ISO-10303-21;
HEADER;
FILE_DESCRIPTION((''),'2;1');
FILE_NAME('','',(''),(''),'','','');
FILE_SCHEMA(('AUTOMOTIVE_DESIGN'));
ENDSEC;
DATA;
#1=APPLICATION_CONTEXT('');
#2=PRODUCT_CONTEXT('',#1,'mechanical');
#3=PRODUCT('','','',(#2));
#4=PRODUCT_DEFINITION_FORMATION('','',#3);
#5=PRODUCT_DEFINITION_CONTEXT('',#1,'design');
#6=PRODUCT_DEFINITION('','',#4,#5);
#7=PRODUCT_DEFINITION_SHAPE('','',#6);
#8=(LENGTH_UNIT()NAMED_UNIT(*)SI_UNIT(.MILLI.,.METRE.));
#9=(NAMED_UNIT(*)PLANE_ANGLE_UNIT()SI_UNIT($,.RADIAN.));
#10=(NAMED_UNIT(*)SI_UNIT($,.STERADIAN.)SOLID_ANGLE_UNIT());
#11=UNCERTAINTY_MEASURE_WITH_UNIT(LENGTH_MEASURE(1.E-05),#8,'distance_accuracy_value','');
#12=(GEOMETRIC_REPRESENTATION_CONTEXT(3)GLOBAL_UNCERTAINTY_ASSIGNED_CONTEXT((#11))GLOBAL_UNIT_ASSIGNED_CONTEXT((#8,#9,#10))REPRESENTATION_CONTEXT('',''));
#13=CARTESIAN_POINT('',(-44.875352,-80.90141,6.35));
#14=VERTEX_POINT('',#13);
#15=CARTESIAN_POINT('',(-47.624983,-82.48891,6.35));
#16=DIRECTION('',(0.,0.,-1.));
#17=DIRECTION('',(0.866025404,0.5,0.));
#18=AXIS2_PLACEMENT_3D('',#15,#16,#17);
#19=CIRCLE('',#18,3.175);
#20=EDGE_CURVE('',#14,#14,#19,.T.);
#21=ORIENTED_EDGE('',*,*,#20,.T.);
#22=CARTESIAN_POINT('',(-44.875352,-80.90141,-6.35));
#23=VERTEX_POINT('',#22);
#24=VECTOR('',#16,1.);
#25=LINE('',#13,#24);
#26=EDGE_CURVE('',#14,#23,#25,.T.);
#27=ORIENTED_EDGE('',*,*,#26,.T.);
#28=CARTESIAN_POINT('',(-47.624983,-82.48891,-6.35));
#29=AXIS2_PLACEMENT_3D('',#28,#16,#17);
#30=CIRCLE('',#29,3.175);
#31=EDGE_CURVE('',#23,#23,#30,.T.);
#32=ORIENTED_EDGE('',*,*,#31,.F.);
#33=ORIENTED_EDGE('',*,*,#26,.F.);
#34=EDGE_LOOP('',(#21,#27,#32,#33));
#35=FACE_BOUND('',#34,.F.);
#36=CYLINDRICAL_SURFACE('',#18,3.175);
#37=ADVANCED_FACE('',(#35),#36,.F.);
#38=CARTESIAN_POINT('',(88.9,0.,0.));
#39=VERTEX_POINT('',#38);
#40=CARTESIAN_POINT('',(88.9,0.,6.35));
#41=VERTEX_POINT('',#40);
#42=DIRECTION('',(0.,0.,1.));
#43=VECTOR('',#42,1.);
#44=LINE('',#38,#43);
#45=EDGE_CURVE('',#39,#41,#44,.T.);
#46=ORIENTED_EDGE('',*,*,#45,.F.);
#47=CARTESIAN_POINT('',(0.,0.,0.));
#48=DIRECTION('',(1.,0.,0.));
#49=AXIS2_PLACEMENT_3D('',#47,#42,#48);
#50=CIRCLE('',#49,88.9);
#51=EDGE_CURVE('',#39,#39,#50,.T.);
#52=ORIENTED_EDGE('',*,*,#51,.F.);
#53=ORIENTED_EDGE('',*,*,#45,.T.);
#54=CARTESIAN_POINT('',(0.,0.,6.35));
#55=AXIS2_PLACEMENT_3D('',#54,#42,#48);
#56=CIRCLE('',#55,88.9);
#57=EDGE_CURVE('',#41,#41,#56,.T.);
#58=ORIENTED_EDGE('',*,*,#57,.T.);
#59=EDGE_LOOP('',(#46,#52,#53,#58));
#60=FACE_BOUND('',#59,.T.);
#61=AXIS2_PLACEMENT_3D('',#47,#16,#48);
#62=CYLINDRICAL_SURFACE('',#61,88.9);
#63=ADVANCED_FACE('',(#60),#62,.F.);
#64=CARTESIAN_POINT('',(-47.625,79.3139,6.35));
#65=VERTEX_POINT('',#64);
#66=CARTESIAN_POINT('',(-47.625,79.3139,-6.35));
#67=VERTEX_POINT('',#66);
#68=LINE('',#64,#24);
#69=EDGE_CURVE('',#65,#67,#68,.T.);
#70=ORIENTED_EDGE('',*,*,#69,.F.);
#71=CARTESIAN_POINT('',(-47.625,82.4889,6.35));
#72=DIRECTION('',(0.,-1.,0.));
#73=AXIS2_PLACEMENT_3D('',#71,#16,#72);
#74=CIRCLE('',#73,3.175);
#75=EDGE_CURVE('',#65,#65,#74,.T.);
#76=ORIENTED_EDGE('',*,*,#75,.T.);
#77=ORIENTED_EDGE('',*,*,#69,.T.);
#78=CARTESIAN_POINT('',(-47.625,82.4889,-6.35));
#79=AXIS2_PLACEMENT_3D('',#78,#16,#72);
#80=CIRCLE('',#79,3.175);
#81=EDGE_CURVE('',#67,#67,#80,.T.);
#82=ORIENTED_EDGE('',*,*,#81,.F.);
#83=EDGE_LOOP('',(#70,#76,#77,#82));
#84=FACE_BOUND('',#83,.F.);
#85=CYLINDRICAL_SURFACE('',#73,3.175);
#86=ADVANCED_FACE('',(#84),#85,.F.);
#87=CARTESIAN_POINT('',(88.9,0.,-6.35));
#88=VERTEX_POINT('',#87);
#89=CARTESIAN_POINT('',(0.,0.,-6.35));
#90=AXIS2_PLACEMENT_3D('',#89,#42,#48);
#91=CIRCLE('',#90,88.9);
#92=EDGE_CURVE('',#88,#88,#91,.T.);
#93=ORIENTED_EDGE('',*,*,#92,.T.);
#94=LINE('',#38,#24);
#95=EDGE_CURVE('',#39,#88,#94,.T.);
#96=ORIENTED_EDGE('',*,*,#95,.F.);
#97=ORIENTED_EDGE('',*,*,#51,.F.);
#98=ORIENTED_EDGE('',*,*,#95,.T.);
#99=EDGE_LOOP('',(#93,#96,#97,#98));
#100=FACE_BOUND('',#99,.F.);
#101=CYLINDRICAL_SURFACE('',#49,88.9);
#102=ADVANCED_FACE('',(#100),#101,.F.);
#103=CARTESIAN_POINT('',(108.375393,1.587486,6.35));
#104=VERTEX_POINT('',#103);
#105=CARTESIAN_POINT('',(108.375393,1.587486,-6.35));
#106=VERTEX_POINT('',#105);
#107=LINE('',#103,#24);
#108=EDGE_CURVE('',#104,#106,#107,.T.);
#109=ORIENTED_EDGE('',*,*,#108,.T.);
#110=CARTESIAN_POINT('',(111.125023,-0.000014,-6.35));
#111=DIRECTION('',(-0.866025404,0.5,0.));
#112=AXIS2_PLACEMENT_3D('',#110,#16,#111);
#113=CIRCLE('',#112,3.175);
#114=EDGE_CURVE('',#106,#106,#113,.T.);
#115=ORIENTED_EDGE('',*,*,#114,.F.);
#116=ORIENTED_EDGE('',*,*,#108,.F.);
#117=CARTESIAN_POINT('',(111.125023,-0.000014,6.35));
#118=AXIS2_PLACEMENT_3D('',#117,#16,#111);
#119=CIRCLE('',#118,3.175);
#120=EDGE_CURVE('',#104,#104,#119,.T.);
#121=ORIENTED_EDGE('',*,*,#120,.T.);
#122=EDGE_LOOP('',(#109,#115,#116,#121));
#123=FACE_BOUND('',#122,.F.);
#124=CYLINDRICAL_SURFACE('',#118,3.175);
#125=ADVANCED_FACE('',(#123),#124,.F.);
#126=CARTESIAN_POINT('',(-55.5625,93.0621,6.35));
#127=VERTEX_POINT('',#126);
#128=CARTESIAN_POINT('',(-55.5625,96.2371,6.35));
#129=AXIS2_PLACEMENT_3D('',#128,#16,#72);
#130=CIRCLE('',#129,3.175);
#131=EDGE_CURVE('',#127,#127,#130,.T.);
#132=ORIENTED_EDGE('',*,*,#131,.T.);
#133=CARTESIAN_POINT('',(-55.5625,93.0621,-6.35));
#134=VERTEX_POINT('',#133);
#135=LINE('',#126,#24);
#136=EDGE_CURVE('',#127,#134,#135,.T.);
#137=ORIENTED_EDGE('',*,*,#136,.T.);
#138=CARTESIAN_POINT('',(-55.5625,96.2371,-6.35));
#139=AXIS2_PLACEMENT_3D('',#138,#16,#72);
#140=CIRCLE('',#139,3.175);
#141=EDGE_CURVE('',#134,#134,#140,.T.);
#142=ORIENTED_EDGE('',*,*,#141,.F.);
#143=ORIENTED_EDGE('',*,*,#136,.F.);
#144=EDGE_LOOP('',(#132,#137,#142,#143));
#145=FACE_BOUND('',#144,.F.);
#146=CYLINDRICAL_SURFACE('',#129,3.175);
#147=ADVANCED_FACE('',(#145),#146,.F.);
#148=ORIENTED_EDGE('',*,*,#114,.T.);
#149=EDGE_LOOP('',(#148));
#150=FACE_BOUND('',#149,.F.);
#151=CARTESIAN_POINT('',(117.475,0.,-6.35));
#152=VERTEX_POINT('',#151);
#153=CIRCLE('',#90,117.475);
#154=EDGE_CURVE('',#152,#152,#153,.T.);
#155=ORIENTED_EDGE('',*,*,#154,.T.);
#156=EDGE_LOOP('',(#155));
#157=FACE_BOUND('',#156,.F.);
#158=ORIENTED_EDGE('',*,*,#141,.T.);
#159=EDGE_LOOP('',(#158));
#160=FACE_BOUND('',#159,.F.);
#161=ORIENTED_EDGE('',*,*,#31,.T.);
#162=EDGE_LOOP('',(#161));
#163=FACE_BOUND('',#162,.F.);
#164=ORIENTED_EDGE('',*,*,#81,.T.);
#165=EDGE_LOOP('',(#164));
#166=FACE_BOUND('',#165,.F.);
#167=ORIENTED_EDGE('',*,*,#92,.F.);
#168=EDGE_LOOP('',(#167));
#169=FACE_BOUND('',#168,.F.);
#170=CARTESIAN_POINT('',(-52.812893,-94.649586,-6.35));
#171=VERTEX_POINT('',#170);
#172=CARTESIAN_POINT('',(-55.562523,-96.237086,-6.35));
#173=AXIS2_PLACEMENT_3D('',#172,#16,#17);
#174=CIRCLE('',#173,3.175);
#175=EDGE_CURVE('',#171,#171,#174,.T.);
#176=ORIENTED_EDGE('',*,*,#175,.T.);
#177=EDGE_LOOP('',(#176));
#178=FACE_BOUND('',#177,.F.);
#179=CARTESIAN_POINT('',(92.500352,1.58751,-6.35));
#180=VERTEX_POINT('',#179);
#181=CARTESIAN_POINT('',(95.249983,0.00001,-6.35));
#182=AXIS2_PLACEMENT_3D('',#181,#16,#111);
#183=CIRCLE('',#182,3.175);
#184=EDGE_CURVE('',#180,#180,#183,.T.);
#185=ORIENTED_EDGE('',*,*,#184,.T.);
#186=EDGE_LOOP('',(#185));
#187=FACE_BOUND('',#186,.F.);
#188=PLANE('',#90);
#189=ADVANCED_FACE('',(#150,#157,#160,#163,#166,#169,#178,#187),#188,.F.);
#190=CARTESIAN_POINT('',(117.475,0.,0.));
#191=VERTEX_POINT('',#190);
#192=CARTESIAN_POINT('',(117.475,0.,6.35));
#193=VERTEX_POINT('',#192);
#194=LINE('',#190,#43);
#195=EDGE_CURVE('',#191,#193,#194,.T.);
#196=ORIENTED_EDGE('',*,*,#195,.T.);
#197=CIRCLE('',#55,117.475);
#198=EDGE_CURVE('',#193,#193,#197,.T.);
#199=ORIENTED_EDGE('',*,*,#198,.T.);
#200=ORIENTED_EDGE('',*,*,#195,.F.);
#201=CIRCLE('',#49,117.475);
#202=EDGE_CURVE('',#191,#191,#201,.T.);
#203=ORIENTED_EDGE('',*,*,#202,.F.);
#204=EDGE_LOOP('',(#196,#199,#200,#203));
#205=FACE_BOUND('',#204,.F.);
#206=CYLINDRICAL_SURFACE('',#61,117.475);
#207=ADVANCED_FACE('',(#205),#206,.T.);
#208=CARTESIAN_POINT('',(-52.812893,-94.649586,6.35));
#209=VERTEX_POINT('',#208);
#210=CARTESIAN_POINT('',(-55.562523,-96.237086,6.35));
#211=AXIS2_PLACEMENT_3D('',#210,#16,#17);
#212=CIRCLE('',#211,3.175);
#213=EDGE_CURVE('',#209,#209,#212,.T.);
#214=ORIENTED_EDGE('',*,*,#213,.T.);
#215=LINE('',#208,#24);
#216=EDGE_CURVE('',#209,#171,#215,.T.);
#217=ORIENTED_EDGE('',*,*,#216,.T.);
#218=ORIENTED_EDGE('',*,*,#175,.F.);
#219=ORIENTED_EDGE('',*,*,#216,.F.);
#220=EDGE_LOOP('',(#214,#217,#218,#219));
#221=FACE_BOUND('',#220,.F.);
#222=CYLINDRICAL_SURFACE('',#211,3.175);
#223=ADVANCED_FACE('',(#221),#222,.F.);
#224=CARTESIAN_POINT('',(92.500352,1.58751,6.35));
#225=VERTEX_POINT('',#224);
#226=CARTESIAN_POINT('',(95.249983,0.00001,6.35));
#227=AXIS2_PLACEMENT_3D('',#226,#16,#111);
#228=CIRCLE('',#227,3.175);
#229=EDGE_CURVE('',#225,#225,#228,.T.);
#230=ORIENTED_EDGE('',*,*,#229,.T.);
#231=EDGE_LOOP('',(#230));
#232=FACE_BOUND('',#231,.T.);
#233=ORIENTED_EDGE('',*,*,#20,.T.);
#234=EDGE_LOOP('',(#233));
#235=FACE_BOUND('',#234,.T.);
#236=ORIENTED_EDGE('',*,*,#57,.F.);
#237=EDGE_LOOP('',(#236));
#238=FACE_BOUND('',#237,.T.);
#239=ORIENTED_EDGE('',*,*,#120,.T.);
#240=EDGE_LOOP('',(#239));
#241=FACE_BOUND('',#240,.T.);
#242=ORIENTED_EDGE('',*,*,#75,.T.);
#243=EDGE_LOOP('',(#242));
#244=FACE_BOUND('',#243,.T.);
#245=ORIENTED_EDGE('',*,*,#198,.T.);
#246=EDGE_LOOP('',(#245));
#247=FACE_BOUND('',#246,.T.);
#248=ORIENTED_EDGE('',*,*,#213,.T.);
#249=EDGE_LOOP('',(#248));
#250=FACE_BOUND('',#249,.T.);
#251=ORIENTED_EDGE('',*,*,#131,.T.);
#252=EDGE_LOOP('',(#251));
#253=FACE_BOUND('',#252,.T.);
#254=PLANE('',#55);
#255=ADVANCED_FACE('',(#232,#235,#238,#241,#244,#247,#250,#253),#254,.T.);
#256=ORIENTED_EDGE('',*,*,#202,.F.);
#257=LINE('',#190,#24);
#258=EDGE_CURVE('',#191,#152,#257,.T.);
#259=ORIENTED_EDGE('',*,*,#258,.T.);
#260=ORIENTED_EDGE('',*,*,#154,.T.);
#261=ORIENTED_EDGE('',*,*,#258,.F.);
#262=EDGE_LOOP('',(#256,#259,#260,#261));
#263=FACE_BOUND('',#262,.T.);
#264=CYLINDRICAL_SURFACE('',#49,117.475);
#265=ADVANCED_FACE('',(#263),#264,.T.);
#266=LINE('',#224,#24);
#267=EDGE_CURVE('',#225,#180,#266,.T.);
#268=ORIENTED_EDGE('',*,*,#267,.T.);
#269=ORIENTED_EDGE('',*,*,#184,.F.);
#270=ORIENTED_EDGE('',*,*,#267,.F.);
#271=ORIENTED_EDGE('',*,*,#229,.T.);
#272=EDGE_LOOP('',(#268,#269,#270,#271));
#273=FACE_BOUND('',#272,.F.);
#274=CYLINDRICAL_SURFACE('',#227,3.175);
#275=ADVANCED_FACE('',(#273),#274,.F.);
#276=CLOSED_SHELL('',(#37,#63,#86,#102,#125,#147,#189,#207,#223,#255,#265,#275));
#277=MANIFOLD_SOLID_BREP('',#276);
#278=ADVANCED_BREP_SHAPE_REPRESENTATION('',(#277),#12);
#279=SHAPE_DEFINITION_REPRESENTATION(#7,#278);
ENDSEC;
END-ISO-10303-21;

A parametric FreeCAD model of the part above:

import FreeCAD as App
import Part
import Sketcher
from FreeCAD import Vector
Q = App.Units.Quantity

doc = App.newDocument("Part")
body = doc.addObject("PartDesign::Body", "Body")

sketch1 = body.newObject("Sketcher::SketchObject", "Sketch")
sketch1.AttachmentSupport = (doc.getObject("XY_Plane"), [""])
sketch1.MapMode = "FlatFace"
sketch1.addGeometry(Part.Circle(Vector(0, 0, 0), Vector(0, 0, 1), 117), False)
sketch1.addGeometry(Part.Circle(Vector(0, 0, 0), Vector(0, 0, 1), 89), False)
sketch1.addConstraint(Sketcher.Constraint("Coincident", 0, 3, -1, 1))
sketch1.addConstraint(Sketcher.Constraint("Coincident", 1, 3, -1, 1))
sketch1.addConstraint(Sketcher.Constraint("Diameter", 1, Q("7 in")))
sketch1.addConstraint(Sketcher.Constraint("Diameter", 0, Q("9.25 in")))
pad1 = body.newObject("PartDesign::Pad", "Pad")
pad1.Profile = sketch1
pad1.Length = Q("0.5 in")
pad1.Midplane = True

sketch2 = body.newObject("Sketcher::SketchObject", "Sketch001")
sketch2.AttachmentSupport = (doc.getObject("XY_Plane"), [""])
sketch2.MapMode = "FlatFace"
sketch2.AttachmentOffset = App.Placement(Vector(0, 0, 0.25 * 25.4), App.Rotation())
sketch2.addGeometry(Part.Circle(Vector(-47.6, 82.5, 0), Vector(0, 0, 1), 3.2), False)
sketch2.addGeometry(Part.Circle(Vector(-55.6, 96.2, 0), Vector(0, 0, 1), 3.2), False)
sketch2.addConstraint(Sketcher.Constraint("Equal", 0, 1))
sketch2.addConstraint(Sketcher.Constraint("Diameter", 0, Q("0.25 in")))
sketch2.addConstraint(Sketcher.Constraint("DistanceX", 0, 3, -1, 1, Q("1.875 in")))
sketch2.addConstraint(Sketcher.Constraint("DistanceX", 1, 3, -1, 1, Q("2.1875 in")))
sketch2.addConstraint(Sketcher.Constraint("DistanceY", -1, 1, 0, 3, Q("3.2476 in")))
sketch2.addConstraint(Sketcher.Constraint("DistanceY", -1, 1, 1, 3, 96.237))
doc.recompute()
hole = body.newObject("PartDesign::Hole", "Hole")
hole.Profile = sketch2
hole.ThreadType = "None"
hole.Diameter = Q("0.25 in")
hole.DepthType = "ThroughAll"
doc.recompute()

polarpattern = body.newObject("PartDesign::PolarPattern", "PolarPattern")
polarpattern.Originals = [hole]
polarpattern.Axis = (doc.getObject("Z_Axis"), [""])
polarpattern.Angle = 360
polarpattern.Occurrences = 3
body.Tip = polarpattern

doc.recompute()
